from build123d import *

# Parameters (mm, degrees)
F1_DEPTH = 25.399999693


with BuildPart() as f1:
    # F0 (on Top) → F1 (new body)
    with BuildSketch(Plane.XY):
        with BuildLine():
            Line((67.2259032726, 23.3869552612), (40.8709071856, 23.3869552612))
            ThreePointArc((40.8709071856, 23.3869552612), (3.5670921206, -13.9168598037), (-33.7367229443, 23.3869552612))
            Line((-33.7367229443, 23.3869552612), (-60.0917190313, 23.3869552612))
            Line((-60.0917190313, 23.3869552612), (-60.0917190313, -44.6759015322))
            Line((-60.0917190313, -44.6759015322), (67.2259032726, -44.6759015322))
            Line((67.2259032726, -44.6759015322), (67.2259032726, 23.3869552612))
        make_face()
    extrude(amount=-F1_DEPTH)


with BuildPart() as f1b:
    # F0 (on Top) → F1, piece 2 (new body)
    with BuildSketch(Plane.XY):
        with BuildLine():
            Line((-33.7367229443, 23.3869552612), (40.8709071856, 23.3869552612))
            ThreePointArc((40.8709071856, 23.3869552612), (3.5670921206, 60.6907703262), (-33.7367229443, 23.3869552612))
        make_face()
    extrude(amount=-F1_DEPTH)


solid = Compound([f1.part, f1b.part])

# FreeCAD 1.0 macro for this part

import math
import FreeCAD as App
import Part
import Sketcher
Q = App.Units.Quantity

doc = App.newDocument("Part")
body = doc.addObject("PartDesign::Body", "Body")

# Sketch on XY plane
sketch1 = body.newObject("Sketcher::SketchObject", "Sketch")
sketch1.AttachmentSupport = (doc.getObject("XY_Plane"), [""])
sketch1.MapMode = "FlatFace"
sketch1.addGeometry(Part.LineSegment(App.Vector(67, 23, 0), App.Vector(41, 23, 0)), False)
sketch1.addGeometry(Part.ArcOfCircle(Part.Circle(App.Vector(4, 23, 0), App.Vector(0, 0, 1), 37), math.radians(180), math.radians(360)), False)
sketch1.addGeometry(Part.LineSegment(App.Vector(-34, 23, 0), App.Vector(-60, 23, 0)), False)
sketch1.addGeometry(Part.LineSegment(App.Vector(-60, 23, 0), App.Vector(-60, -45, 0)), False)
sketch1.addGeometry(Part.LineSegment(App.Vector(-60, -45, 0), App.Vector(67, -45, 0)), False)
sketch1.addGeometry(Part.LineSegment(App.Vector(67, -45, 0), App.Vector(67, 23, 0)), False)
sketch1.addConstraint(Sketcher.Constraint("Coincident", 0, 2, 1, 2))
sketch1.addConstraint(Sketcher.Constraint("Coincident", 1, 1, 2, 1))
sketch1.addConstraint(Sketcher.Constraint("Coincident", 2, 2, 3, 1))
sketch1.addConstraint(Sketcher.Constraint("Coincident", 3, 2, 4, 1))
sketch1.addConstraint(Sketcher.Constraint("Coincident", 4, 2, 5, 1))
sketch1.addConstraint(Sketcher.Constraint("Coincident", 5, 2, 0, 1))
sketch1.addConstraint(Sketcher.Constraint("Horizontal", 0))
sketch1.addConstraint(Sketcher.Constraint("Horizontal", 2))
sketch1.addConstraint(Sketcher.Constraint("Vertical", 3))
sketch1.addConstraint(Sketcher.Constraint("Horizontal", 4))
sketch1.addConstraint(Sketcher.Constraint("Vertical", 5))
sketch1.addConstraint(Sketcher.Constraint("Horizontal", 1, 3, 0, 2))
sketch1.addConstraint(Sketcher.Constraint("Horizontal", 0, 2, 1, 1))
sketch1.addConstraint(Sketcher.Constraint("Equal", 0, 2))
sketch1.addConstraint(Sketcher.Constraint("Radius", 1, 37.303815))
sketch1.addConstraint(Sketcher.Constraint("DistanceY", 3, 2, -1, 1, 44.675902))
sketch1.addConstraint(Sketcher.Constraint("DistanceX", 0, 2, 0, 1, 26.354996))
sketch1.addConstraint(Sketcher.Constraint("DistanceY", 3, 2, 3, 1, 68.062857))
sketch1.addConstraint(Sketcher.Constraint("DistanceX", 2, 2, -1, 1, 60.091719))
pad1 = body.newObject("PartDesign::Pad", "Pad")
pad1.Profile = sketch1
pad1.Length = Q("1 in")
pad1.Reversed = True
body2 = doc.addObject("PartDesign::Body", "Body001")

# Sketch on XY plane
sketch2 = body2.newObject("Sketcher::SketchObject", "Sketch001")
sketch2.AttachmentSupport = (doc.getObject("XY_Plane001"), [""])
sketch2.MapMode = "FlatFace"
sketch2.addGeometry(Part.LineSegment(App.Vector(-34, 23, 0), App.Vector(41, 23, 0)), False)
sketch2.addGeometry(Part.ArcOfCircle(Part.Circle(App.Vector(4, 23, 0), App.Vector(0, 0, 1), 37), math.radians(0), math.radians(180)), False)
sketch2.addConstraint(Sketcher.Constraint("Coincident", 0, 1, 1, 2))
sketch2.addConstraint(Sketcher.Constraint("Coincident", 1, 1, 0, 2))
sketch2.addConstraint(Sketcher.Constraint("Horizontal", 0))
sketch2.addConstraint(Sketcher.Constraint("Horizontal", 1, 3, 0, 1))
sketch2.addConstraint(Sketcher.Constraint("Radius", 1, 37.303815))
sketch2.addConstraint(Sketcher.Constraint("DistanceX", -1, 1, 1, 3, 3.567092))
sketch2.addConstraint(Sketcher.Constraint("DistanceY", -1, 1, 1, 3, 23.386955))
pad2 = body2.newObject("PartDesign::Pad", "Pad001")
pad2.Profile = sketch2
pad2.Length = Q("1 in")
pad2.Reversed = True

doc.recompute()
